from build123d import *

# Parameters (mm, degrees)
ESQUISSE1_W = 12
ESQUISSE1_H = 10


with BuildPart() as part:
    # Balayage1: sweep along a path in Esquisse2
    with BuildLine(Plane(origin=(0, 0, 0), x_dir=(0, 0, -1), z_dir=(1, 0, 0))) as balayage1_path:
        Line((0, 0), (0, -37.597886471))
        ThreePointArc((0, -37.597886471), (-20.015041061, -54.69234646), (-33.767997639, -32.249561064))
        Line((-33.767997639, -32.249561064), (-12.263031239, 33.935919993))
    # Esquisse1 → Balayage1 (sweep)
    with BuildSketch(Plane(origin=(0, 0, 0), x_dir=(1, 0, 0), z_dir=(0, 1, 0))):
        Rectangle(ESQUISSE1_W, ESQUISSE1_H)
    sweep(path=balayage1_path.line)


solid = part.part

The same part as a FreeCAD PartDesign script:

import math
import FreeCAD as App
import Part
import Sketcher

V = App.Vector
Q = App.Units.Quantity

doc = App.newDocument("Part")
body = doc.addObject("PartDesign::Body", "Body")

# Sketch on XZ plane
sketch1 = doc.addObject("Sketcher::SketchObject", "Sketch")
body.addObject(sketch1)
sketch1.AttachmentSupport = (doc.XZ_Plane, [""])
sketch1.MapMode = "FlatFace"
sketch1.addGeometry(Part.LineSegment(V(-6, -5, 0), V(-6, 5, 0)), False)
sketch1.addGeometry(Part.LineSegment(V(-6, 5, 0), V(6, 5, 0)), False)
sketch1.addGeometry(Part.LineSegment(V(6, 5, 0), V(6, -5, 0)), False)
sketch1.addGeometry(Part.LineSegment(V(6, -5, 0), V(-6, -5, 0)), False)
sketch1.addConstraint(Sketcher.Constraint("Coincident", 0, 2, 1, 1))
sketch1.addConstraint(Sketcher.Constraint("Coincident", 1, 2, 2, 1))
sketch1.addConstraint(Sketcher.Constraint("Coincident", 2, 2, 3, 1))
sketch1.addConstraint(Sketcher.Constraint("Coincident", 3, 2, 0, 1))
sketch1.addConstraint(Sketcher.Constraint("Vertical", 0))
sketch1.addConstraint(Sketcher.Constraint("Horizontal", 1))
sketch1.addConstraint(Sketcher.Constraint("Vertical", 2))
sketch1.addConstraint(Sketcher.Constraint("Horizontal", 3))
sketch1.addConstraint(Sketcher.Constraint("Symmetric", 0, 2, 2, 2, -1, 1))
sketch1.addConstraint(Sketcher.Constraint("DistanceX", 1, 1, 1, 2, Q("12 mm")))
sketch1.addConstraint(Sketcher.Constraint("DistanceY", 0, 1, 0, 2, Q("10 mm")))

# Sketch on YZ plane
sketch2 = doc.addObject("Sketcher::SketchObject", "Sketch001")
body.addObject(sketch2)
sketch2.AttachmentSupport = (doc.YZ_Plane, [""])
sketch2.MapMode = "FlatFace"
sketch2.addGeometry(Part.LineSegment(V(0, 0, 0), V(-38, 0, 0)), False)
sketch2.addGeometry(Part.ArcOfCircle(Part.Circle(V(-38, 17, 0), V(0, 0, 1), 17), math.radians(72), math.radians(270)), False)
sketch2.addGeometry(Part.LineSegment(V(-32, 34, 0), V(34, 12, 0)), False)
sketch2.addConstraint(Sketcher.Constraint("Tangent", 0, 2, 1, 2))
sketch2.addConstraint(Sketcher.Constraint("Tangent", 1, 1, 2, 1))
sketch2.addConstraint(Sketcher.Constraint("Horizontal", 0))
sketch2.addConstraint(Sketcher.Constraint("Coincident", 0, 1, -1, 1))
sketch2.addConstraint(Sketcher.Constraint("Angle", 2, Q("-18 deg")))
sketch2.addConstraint(Sketcher.Constraint("Radius", 1, Q("17.307545 mm")))
sketch2.addConstraint(Sketcher.Constraint("DistanceX", 0, 2, 0, 1, Q("37.597886 mm")))
sketch2.addConstraint(Sketcher.Constraint("DistanceX", -1, 1, 2, 2, Q("33.93592 mm")))
doc.recompute()

additivepipe = doc.addObject("PartDesign::AdditivePipe", "AdditivePipe")
body.addObject(additivepipe)
additivepipe.Profile = sketch1
additivepipe.Spine = (sketch2, ["Edge1", "Edge2", "Edge3"])

doc.recompute()
